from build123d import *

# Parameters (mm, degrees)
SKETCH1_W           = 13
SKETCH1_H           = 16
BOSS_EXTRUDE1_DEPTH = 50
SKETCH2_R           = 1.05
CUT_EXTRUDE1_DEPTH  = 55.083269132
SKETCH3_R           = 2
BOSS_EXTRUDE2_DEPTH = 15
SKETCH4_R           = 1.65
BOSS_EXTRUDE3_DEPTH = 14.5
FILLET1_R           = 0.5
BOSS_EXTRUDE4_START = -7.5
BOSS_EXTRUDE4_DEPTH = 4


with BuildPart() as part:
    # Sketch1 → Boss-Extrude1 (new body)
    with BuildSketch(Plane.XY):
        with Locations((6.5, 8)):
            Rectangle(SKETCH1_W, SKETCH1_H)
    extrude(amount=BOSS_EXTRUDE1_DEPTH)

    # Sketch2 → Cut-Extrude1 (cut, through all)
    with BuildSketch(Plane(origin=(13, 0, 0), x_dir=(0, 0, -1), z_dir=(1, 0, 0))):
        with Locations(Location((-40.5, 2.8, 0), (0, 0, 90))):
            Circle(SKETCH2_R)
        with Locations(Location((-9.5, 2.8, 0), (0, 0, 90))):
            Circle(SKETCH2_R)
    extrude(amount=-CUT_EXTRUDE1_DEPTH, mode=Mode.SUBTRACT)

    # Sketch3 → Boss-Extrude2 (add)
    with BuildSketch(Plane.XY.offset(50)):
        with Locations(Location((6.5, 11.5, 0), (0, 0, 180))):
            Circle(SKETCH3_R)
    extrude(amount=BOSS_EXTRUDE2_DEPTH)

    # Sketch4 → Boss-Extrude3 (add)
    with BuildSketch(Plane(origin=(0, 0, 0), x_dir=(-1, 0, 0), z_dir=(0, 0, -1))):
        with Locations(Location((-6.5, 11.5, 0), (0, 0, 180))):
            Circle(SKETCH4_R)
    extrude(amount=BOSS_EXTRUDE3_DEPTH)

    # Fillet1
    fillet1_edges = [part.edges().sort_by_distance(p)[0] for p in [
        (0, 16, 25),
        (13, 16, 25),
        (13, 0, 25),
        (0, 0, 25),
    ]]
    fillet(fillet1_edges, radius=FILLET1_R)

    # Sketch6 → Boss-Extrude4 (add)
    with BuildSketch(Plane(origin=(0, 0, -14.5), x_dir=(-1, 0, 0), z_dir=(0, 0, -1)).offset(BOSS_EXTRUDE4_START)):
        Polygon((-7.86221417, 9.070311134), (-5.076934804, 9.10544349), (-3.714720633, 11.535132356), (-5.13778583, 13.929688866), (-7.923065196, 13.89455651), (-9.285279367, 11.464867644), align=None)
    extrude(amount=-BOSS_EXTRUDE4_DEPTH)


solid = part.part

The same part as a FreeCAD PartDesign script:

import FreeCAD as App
import Part
import Sketcher

V = App.Vector


def edges_at(feature, points):
    """Names of the edges that pass closest to the given points."""
    edges = feature.Shape.Edges
    near = lambda p: min(range(len(edges)), key=lambda i: edges[i].distToShape(Part.Vertex(*p))[0])
    return sorted({f"Edge{near(p) + 1}" for p in points})


def add_polygon(sketch, points):
    """Adds a closed chain of lines whose ends are joined by coincident constraints."""
    first, n = sketch.GeometryCount, len(points)
    for a, b in zip(points, points[1:] + points[:1]):
        sketch.addGeometry(Part.LineSegment(App.Vector(*a, 0), App.Vector(*b, 0)), False)
    for i in range(n):
        sketch.addConstraint(Sketcher.Constraint("Coincident", first + i, 2, first + (i + 1) % n, 1))

doc = App.newDocument("Part")
body = doc.addObject("PartDesign::Body", "Body")

# Sketch on XY plane
sketch1 = body.newObject("Sketcher::SketchObject", "Sketch")
sketch1.AttachmentSupport = (doc.getObject("XY_Plane"), [""])
sketch1.MapMode = "FlatFace"
add_polygon(sketch1, [(0, 16), (0, 0), (13, 0), (13, 16)])  # lines 0-3
sketch1.addConstraint(Sketcher.Constraint("Vertical", 0))
sketch1.addConstraint(Sketcher.Constraint("Horizontal", 1))
sketch1.addConstraint(Sketcher.Constraint("Vertical", 2))
sketch1.addConstraint(Sketcher.Constraint("Horizontal", 3))
sketch1.addConstraint(Sketcher.Constraint("Coincident", 0, 2, -1, 1))
sketch1.addConstraint(Sketcher.Constraint("DistanceX", 1, 1, 1, 2, 13.0))
sketch1.addConstraint(Sketcher.Constraint("DistanceY", 0, 2, 0, 1, 16.0))
pad1 = body.newObject("PartDesign::Pad", "Pad")
pad1.Profile = sketch1
pad1.Length = 50

# Sketch on YZ plane
sketch2 = body.newObject("Sketcher::SketchObject", "Sketch001")
sketch2.AttachmentSupport = (doc.getObject("YZ_Plane"), [""])
sketch2.MapMode = "FlatFace"
sketch2.AttachmentOffset = App.Placement(V(0, 0, 13), App.Rotation())
sketch2.addGeometry(Part.Circle(V(2.8, 40.5, 0), V(0, 0, 1), 1.1), False)
sketch2.addGeometry(Part.Circle(V(2.8, 9.5, 0), V(0, 0, 1), 1.1), False)
sketch2.addConstraint(Sketcher.Constraint("Equal", 0, 1))
sketch2.addConstraint(Sketcher.Constraint("Vertical", 0, 3, 1, 3))
sketch2.addConstraint(Sketcher.Constraint("Diameter", 0, 2.1))
sketch2.addConstraint(Sketcher.Constraint("DistanceY", 1, 3, 0, 3, 31.0))
sketch2.addConstraint(Sketcher.Constraint("DistanceX", -1, 1, 0, 3, 2.8))
sketch2.addConstraint(Sketcher.Constraint("DistanceY", -1, 1, 0, 3, 40.5))
pocket1 = body.newObject("PartDesign::Pocket", "Pocket")
pocket1.Profile = sketch2
pocket1.Type = "ThroughAll"

# Sketch on XY plane
sketch3 = body.newObject("Sketcher::SketchObject", "Sketch002")
sketch3.AttachmentSupport = (doc.getObject("XY_Plane"), [""])
sketch3.MapMode = "FlatFace"
sketch3.AttachmentOffset = App.Placement(V(0, 0, 50), App.Rotation())
sketch3.addGeometry(Part.Circle(V(6.5, 11.5, 0), V(0, 0, 1), 2), False)
sketch3.addConstraint(Sketcher.Constraint("Diameter", 0, 4.0))
sketch3.addConstraint(Sketcher.Constraint("DistanceX", -1, 1, 0, 3, 6.5))
sketch3.addConstraint(Sketcher.Constraint("DistanceY", -1, 1, 0, 3, 11.5))
pad2 = body.newObject("PartDesign::Pad", "Pad001")
pad2.Profile = sketch3
pad2.Length = 15

# Sketch on XY plane
sketch4 = body.newObject("Sketcher::SketchObject", "Sketch003")
sketch4.AttachmentSupport = (doc.getObject("XY_Plane"), [""])
sketch4.MapMode = "FlatFace"
sketch4.addGeometry(Part.Circle(V(6.5, 11.5, 0), V(0, 0, 1), 1.6), False)
sketch4.addConstraint(Sketcher.Constraint("Diameter", 0, 3.3))
sketch4.addConstraint(Sketcher.Constraint("DistanceX", -1, 1, 0, 3, 6.5))
sketch4.addConstraint(Sketcher.Constraint("DistanceY", -1, 1, 0, 3, 11.5))
pad3 = body.newObject("PartDesign::Pad", "Pad002")
pad3.Profile = sketch4
pad3.Length = 14.5
pad3.Reversed = True
doc.recompute()

fillet = body.newObject("PartDesign::Fillet", "Fillet")
fillet.Base = (pad3, edges_at(pad3, [
    (0, 16, 25),
    (13, 16, 25),
    (13, 0, 25),
    (0, 0, 25),
]))
fillet.Radius = 0.5

# Sketch on XY plane
sketch5 = body.newObject("Sketcher::SketchObject", "Sketch004")
sketch5.AttachmentSupport = (doc.getObject("XY_Plane"), [""])
sketch5.MapMode = "FlatFace"
sketch5.AttachmentOffset = App.Placement(V(0, 0, -7), App.Rotation())
add_polygon(sketch5, [(7.9, 9.1), (5.1, 9.1), (3.7, 11.5), (5.1, 13.9), (7.9, 13.9), (9.3, 11.5)])  # lines 0-5
sketch5.addConstraint(Sketcher.Constraint("Parallel", 0, 3))
sketch5.addConstraint(Sketcher.Constraint("Parallel", 1, 4))
sketch5.addConstraint(Sketcher.Constraint("Parallel", 2, 5))
sketch5.addConstraint(Sketcher.Constraint("Equal", 0, 1))
sketch5.addConstraint(Sketcher.Constraint("Equal", 1, 2))
sketch5.addConstraint(Sketcher.Constraint("Equal", 2, 3))
sketch5.addConstraint(Sketcher.Constraint("Distance", 0, 2.785501))
sketch5.addConstraint(Sketcher.Constraint("DistanceX", -1, 1, 1, 2, 3.714721))
sketch5.addConstraint(Sketcher.Constraint("DistanceY", -1, 1, 2, 2, 13.929689))
sketch5.addConstraint(Sketcher.Constraint("DistanceX", -1, 1, 4, 2, 9.285279))
sketch5.addConstraint(Sketcher.Constraint("DistanceY", -1, 1, 5, 2, 9.070311))
sketch5.addConstraint(Sketcher.Constraint("DistanceY", 0, 2, 1, 2, 2.429689))
pad4 = body.newObject("PartDesign::Pad", "Pad003")
pad4.Profile = sketch5
pad4.Length = 4

doc.recompute()
